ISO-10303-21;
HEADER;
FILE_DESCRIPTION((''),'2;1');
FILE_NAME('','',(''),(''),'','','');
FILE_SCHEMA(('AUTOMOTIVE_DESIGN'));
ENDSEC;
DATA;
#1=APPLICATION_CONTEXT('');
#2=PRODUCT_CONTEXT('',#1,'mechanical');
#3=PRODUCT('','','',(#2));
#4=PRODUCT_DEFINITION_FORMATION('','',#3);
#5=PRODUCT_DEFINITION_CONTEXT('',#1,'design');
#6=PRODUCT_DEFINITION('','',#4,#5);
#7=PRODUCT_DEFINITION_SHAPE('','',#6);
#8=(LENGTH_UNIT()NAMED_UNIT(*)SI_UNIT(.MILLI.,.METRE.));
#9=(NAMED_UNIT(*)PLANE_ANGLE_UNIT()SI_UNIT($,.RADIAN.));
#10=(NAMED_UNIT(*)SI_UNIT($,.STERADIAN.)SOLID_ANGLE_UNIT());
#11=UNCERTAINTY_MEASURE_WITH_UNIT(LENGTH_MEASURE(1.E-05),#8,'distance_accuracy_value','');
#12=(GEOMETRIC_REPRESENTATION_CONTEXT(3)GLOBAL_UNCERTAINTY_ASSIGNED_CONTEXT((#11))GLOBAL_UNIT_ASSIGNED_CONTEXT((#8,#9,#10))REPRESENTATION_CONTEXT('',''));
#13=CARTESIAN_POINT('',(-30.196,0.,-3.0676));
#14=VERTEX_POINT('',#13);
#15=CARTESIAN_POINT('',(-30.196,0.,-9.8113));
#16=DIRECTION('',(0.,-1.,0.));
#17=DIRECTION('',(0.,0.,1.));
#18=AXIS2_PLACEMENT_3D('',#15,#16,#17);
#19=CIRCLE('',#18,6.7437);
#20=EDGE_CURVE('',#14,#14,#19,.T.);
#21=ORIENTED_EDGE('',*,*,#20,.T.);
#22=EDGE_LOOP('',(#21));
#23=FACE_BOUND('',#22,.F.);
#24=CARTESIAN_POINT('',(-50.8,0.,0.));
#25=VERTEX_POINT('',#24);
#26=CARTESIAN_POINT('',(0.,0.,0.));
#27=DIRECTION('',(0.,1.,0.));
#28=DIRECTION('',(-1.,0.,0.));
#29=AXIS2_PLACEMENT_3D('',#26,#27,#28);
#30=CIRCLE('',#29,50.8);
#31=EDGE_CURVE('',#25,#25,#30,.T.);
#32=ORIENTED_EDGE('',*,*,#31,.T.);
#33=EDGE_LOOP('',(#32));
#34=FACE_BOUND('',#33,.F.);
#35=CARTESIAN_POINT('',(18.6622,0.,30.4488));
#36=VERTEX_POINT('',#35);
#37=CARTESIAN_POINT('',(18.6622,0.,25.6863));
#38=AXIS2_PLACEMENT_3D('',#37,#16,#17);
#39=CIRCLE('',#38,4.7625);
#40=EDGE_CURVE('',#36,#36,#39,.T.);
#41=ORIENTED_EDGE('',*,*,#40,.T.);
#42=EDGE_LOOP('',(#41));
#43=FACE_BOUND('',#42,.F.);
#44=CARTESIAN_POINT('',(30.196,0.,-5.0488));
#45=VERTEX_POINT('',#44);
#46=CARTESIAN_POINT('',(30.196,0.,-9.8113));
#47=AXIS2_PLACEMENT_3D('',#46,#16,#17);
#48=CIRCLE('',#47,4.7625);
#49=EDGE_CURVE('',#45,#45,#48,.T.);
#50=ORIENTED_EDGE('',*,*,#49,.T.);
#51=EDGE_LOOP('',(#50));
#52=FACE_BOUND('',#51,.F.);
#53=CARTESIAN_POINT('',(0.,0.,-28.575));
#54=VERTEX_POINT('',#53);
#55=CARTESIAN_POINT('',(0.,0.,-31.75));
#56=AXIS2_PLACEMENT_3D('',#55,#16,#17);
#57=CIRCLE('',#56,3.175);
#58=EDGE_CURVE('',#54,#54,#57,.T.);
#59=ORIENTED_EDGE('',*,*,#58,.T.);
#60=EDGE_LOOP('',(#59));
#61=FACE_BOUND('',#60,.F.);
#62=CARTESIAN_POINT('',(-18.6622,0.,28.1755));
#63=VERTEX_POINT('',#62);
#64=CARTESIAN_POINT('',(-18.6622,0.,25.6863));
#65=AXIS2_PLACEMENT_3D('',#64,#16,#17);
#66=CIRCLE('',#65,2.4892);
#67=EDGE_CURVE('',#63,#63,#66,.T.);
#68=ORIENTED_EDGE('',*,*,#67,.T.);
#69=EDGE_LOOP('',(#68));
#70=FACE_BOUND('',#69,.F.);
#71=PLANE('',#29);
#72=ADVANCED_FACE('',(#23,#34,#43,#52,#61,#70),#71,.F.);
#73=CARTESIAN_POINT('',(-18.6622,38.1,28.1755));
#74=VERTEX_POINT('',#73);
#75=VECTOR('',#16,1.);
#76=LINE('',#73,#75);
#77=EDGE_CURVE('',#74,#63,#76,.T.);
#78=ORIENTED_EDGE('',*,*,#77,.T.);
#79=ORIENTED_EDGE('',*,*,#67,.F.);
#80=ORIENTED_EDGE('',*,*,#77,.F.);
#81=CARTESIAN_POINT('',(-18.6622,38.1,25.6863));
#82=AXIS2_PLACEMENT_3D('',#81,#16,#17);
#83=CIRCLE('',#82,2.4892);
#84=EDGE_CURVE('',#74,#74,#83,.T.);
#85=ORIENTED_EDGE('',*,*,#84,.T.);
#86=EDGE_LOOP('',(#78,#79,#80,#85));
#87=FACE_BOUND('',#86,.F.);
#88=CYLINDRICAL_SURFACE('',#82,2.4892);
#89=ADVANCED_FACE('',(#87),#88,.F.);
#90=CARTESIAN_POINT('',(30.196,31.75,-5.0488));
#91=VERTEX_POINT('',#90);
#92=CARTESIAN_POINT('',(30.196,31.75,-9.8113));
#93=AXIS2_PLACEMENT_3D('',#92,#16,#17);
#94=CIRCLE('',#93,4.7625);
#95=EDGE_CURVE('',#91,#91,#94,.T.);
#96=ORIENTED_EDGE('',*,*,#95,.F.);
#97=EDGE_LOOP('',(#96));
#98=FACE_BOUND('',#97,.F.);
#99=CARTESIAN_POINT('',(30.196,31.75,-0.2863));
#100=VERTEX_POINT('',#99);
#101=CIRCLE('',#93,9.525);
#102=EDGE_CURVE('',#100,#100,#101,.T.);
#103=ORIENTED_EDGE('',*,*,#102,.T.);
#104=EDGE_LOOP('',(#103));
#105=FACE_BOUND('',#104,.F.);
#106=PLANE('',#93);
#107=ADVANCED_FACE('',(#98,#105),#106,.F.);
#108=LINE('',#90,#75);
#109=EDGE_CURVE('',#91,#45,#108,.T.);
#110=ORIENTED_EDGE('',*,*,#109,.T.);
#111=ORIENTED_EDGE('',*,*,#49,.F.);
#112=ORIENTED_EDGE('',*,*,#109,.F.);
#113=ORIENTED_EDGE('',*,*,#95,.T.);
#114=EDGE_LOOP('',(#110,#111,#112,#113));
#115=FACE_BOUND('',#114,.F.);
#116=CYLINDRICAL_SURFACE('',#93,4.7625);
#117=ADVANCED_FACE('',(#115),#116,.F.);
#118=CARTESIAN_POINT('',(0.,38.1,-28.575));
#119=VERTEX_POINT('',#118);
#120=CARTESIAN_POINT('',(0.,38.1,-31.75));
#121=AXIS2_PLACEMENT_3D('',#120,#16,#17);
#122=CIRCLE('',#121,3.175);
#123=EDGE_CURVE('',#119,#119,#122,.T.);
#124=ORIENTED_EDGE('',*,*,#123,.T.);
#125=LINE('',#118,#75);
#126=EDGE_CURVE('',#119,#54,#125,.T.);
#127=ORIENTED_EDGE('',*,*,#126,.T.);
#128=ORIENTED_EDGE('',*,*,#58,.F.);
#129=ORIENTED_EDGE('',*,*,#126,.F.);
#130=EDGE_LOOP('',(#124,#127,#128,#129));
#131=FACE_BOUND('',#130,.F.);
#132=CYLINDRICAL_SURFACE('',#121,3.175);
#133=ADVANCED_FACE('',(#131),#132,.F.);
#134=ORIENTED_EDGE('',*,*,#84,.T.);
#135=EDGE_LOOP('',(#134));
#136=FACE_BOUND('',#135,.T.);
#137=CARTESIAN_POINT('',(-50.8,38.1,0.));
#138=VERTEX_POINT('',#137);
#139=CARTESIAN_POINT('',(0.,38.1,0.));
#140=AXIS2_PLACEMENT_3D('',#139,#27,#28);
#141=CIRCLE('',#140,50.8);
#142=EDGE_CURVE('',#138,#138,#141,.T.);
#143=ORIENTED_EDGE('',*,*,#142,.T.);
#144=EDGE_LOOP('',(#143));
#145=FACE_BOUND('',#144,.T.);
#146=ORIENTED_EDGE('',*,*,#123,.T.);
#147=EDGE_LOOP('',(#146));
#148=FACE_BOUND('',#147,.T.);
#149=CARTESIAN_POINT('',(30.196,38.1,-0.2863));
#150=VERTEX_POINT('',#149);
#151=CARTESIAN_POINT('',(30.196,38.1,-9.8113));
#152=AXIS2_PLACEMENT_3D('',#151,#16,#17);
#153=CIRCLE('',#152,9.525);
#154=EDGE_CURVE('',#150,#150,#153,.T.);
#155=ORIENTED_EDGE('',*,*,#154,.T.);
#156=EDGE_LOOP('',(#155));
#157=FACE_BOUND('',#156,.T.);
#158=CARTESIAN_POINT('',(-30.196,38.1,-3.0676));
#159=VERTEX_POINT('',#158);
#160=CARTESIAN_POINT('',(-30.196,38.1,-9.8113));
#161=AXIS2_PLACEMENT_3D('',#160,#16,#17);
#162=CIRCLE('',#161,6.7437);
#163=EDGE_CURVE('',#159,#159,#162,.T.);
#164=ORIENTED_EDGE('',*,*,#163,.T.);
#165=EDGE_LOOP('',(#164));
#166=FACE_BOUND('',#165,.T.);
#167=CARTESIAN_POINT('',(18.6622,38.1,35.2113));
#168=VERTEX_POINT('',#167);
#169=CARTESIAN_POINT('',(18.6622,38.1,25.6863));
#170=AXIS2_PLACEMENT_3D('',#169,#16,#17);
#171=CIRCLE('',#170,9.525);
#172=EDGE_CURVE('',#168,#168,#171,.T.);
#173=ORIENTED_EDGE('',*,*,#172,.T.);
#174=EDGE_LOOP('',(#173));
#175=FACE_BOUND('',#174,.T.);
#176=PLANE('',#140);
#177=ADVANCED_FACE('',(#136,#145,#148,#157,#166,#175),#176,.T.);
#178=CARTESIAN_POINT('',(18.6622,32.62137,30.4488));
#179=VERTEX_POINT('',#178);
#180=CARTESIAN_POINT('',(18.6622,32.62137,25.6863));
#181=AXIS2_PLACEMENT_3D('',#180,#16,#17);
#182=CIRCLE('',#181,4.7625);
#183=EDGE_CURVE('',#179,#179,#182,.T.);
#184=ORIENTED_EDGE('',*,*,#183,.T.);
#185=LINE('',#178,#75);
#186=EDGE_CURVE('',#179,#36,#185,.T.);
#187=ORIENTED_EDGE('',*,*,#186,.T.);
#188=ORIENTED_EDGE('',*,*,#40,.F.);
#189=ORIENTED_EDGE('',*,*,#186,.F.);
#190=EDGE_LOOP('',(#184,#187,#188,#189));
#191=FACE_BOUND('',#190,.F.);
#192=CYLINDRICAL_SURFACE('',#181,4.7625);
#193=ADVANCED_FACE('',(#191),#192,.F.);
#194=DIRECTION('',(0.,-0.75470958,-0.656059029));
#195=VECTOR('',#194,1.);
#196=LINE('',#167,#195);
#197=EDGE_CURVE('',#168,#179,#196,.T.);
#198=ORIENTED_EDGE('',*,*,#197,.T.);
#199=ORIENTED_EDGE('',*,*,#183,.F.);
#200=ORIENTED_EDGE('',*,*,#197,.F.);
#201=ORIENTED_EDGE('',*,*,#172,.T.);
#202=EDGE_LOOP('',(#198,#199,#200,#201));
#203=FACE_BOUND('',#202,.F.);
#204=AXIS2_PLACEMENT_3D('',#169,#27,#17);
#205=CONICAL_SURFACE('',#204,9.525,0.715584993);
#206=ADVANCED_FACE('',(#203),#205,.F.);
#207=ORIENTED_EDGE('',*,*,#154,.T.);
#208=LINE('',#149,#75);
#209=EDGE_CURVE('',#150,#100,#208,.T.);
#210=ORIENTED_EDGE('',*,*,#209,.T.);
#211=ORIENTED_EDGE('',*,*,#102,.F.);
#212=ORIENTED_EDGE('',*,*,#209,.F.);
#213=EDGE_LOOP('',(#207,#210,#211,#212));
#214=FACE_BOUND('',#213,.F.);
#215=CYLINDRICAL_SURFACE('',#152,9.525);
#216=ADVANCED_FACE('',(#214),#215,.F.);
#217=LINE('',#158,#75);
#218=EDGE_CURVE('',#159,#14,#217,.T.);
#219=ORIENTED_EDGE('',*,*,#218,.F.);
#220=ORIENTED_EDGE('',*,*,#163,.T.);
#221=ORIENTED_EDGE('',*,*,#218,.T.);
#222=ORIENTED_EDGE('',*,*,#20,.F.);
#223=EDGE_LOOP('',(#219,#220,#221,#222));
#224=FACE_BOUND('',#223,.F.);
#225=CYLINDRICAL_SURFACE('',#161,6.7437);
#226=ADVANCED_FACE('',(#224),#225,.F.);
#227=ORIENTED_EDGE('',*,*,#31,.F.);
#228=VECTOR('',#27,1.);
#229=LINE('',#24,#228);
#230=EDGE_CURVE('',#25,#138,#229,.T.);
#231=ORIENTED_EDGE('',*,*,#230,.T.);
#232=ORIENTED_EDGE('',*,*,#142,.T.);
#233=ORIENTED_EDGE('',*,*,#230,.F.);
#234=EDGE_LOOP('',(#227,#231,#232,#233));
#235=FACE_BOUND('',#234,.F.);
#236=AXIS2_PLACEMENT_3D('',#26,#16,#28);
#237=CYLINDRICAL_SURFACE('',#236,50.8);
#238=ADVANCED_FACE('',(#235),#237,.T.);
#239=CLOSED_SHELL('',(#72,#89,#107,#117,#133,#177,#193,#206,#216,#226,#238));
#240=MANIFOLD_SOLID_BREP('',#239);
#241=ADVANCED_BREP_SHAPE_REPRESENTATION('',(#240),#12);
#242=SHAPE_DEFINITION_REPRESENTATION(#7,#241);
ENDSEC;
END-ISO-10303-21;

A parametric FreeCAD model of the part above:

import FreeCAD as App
import Part
import Sketcher

V = App.Vector
Q = App.Units.Quantity

doc = App.newDocument("Part")
params = doc.addObject("Spreadsheet::Sheet", "Params")
for row, (alias, value) in enumerate([
    ("sketch1_diameter", "4 in"),
    ("pad1_length", "1.5 in"),
    ("sketch2_diameter", "0.25 in"),
    ("hole_diameter", "0.25 in"),
    ("sketch3_diameter", "0.375 in"),
    ("hole2_diameter", "0.375 in"),
    ("hole2_cbore_diameter", "0.75 in"),
    ("hole2_cbore_depth", "0.25 in"),
    ("sketch4_diameter", "0.375 in"),
    ("hole3_diameter", "0.375 in"),
    ("hole3_csink_diameter", "0.75 in"),
    ("sketch5_diameter", "0.196 in"),
    ("hole4_diameter", "0.196 in"),
    ("sketch6_diameter", "0.531 in"),
    ("hole5_diameter", "0.531 in"),
], start=1):
    params.set(f"A{row}", alias)
    params.set(f"B{row}", "=" + value)
    params.setAlias(f"B{row}", alias)

body = doc.addObject("PartDesign::Body", "Body")

sketch1 = body.newObject("Sketcher::SketchObject", "Sketch")
sketch1.AttachmentSupport = (doc.getObject("XZ_Plane"), [""])
sketch1.MapMode = "FlatFace"
sketch1.addGeometry(Part.Circle(V(0, 0, 0), V(0, 0, 1), 50.8), False)
sketch1.addConstraint([
    Sketcher.Constraint("Coincident", 0, 3, -1, 1),
    Sketcher.Constraint("Diameter", 0, Q("4 in")),
])
sketch1.setExpression("Constraints[1]", "Params.sketch1_diameter")
pad1 = body.newObject("PartDesign::Pad", "Pad")
pad1.Profile = sketch1
pad1.setExpression("Length", "Params.pad1_length")
pad1.Reversed = True

sketch2 = body.newObject("Sketcher::SketchObject", "Sketch001")
sketch2.AttachmentSupport = (doc.getObject("XZ_Plane"), [""])
sketch2.MapMode = "FlatFace"
sketch2.AttachmentOffset = App.Placement(V(0, 0, -1.5 * 25.4), App.Rotation())
sketch2.addGeometry(Part.Circle(V(0, -31.75, 0), V(0, 0, 1), 3.175), False)
sketch2.addConstraint([
    Sketcher.Constraint("PointOnObject", 0, 3, -2),
    Sketcher.Constraint("Diameter", 0, Q("0.25 in")),
    Sketcher.Constraint("DistanceY", 0, 3, -1, 1, Q("1.25 in")),
])
sketch2.setExpression("Constraints[1]", "Params.sketch2_diameter")
doc.recompute()
hole = body.newObject("PartDesign::Hole", "Hole")
hole.Profile = sketch2
hole.ThreadType = "None"
hole.setExpression("Diameter", "Params.hole_diameter")
hole.DepthType = "ThroughAll"
hole.Reversed = True

sketch3 = body.newObject("Sketcher::SketchObject", "Sketch002")
sketch3.AttachmentSupport = (doc.getObject("XZ_Plane"), [""])
sketch3.MapMode = "FlatFace"
sketch3.AttachmentOffset = App.Placement(V(0, 0, -1.5 * 25.4), App.Rotation())
sketch3.addGeometry(Part.Circle(V(30.196, -9.8113, 0), V(0, 0, 1), 4.7625), False)
sketch3.addConstraint([
    Sketcher.Constraint("Diameter", 0, Q("0.375 in")),
    Sketcher.Constraint("DistanceX", -1, 1, 0, 3, 30.196),
    Sketcher.Constraint("DistanceY", 0, 3, -1, 1, 9.8113),
])
sketch3.setExpression("Constraints[0]", "Params.sketch3_diameter")
doc.recompute()
hole2 = body.newObject("PartDesign::Hole", "Hole001")
hole2.Profile = sketch3
hole2.ThreadType = "None"
hole2.setExpression("Diameter", "Params.hole2_diameter")
hole2.DepthType = "ThroughAll"
hole2.HoleCutType = "Counterbore"
hole2.setExpression("HoleCutDiameter", "Params.hole2_cbore_diameter")
hole2.setExpression("HoleCutDepth", "Params.hole2_cbore_depth")
hole2.Reversed = True

sketch4 = body.newObject("Sketcher::SketchObject", "Sketch003")
sketch4.AttachmentSupport = (doc.getObject("XZ_Plane"), [""])
sketch4.MapMode = "FlatFace"
sketch4.AttachmentOffset = App.Placement(V(0, 0, -1.5 * 25.4), App.Rotation())
sketch4.addGeometry(Part.Circle(V(18.6622, 25.6863, 0), V(0, 0, 1), 4.7625), False)
sketch4.addConstraint([
    Sketcher.Constraint("Diameter", 0, Q("0.375 in")),
    Sketcher.Constraint("DistanceX", -1, 1, 0, 3, 18.6622),
    Sketcher.Constraint("DistanceY", -1, 1, 0, 3, 25.6863),
])
sketch4.setExpression("Constraints[0]", "Params.sketch4_diameter")
doc.recompute()
hole3 = body.newObject("PartDesign::Hole", "Hole002")
hole3.Profile = sketch4
hole3.ThreadType = "None"
hole3.setExpression("Diameter", "Params.hole3_diameter")
hole3.DepthType = "ThroughAll"
hole3.HoleCutType = "Countersink"
hole3.setExpression("HoleCutDiameter", "Params.hole3_csink_diameter")
hole3.HoleCutCountersinkAngle = 82
hole3.Reversed = True

sketch5 = body.newObject("Sketcher::SketchObject", "Sketch004")
sketch5.AttachmentSupport = (doc.getObject("XZ_Plane"), [""])
sketch5.MapMode = "FlatFace"
sketch5.AttachmentOffset = App.Placement(V(0, 0, -1.5 * 25.4), App.Rotation())
sketch5.addGeometry(Part.Circle(V(-18.6622, 25.6863, 0), V(0, 0, 1), 2.4892), False)
sketch5.addConstraint([
    Sketcher.Constraint("Diameter", 0, Q("0.196 in")),
    Sketcher.Constraint("DistanceX", 0, 3, -1, 1, 18.6622),
    Sketcher.Constraint("DistanceY", -1, 1, 0, 3, 25.6863),
])
sketch5.setExpression("Constraints[0]", "Params.sketch5_diameter")
doc.recompute()
hole4 = body.newObject("PartDesign::Hole", "Hole003")
hole4.Profile = sketch5
hole4.ThreadType = "None"
hole4.setExpression("Diameter", "Params.hole4_diameter")
hole4.DepthType = "ThroughAll"
hole4.Reversed = True

sketch6 = body.newObject("Sketcher::SketchObject", "Sketch005")
sketch6.AttachmentSupport = (doc.getObject("XZ_Plane"), [""])
sketch6.MapMode = "FlatFace"
sketch6.AttachmentOffset = App.Placement(V(0, 0, -1.5 * 25.4), App.Rotation())
sketch6.addGeometry(Part.Circle(V(-30.196, -9.8113, 0), V(0, 0, 1), 6.7437), False)
sketch6.addConstraint([
    Sketcher.Constraint("Diameter", 0, Q("0.531 in")),
    Sketcher.Constraint("DistanceX", 0, 3, -1, 1, 30.196),
    Sketcher.Constraint("DistanceY", 0, 3, -1, 1, 9.8113),
])
sketch6.setExpression("Constraints[0]", "Params.sketch6_diameter")
doc.recompute()
hole5 = body.newObject("PartDesign::Hole", "Hole004")
hole5.Profile = sketch6
hole5.ThreadType = "None"
hole5.setExpression("Diameter", "Params.hole5_diameter")
hole5.DepthType = "ThroughAll"
hole5.Reversed = True

doc.recompute()
